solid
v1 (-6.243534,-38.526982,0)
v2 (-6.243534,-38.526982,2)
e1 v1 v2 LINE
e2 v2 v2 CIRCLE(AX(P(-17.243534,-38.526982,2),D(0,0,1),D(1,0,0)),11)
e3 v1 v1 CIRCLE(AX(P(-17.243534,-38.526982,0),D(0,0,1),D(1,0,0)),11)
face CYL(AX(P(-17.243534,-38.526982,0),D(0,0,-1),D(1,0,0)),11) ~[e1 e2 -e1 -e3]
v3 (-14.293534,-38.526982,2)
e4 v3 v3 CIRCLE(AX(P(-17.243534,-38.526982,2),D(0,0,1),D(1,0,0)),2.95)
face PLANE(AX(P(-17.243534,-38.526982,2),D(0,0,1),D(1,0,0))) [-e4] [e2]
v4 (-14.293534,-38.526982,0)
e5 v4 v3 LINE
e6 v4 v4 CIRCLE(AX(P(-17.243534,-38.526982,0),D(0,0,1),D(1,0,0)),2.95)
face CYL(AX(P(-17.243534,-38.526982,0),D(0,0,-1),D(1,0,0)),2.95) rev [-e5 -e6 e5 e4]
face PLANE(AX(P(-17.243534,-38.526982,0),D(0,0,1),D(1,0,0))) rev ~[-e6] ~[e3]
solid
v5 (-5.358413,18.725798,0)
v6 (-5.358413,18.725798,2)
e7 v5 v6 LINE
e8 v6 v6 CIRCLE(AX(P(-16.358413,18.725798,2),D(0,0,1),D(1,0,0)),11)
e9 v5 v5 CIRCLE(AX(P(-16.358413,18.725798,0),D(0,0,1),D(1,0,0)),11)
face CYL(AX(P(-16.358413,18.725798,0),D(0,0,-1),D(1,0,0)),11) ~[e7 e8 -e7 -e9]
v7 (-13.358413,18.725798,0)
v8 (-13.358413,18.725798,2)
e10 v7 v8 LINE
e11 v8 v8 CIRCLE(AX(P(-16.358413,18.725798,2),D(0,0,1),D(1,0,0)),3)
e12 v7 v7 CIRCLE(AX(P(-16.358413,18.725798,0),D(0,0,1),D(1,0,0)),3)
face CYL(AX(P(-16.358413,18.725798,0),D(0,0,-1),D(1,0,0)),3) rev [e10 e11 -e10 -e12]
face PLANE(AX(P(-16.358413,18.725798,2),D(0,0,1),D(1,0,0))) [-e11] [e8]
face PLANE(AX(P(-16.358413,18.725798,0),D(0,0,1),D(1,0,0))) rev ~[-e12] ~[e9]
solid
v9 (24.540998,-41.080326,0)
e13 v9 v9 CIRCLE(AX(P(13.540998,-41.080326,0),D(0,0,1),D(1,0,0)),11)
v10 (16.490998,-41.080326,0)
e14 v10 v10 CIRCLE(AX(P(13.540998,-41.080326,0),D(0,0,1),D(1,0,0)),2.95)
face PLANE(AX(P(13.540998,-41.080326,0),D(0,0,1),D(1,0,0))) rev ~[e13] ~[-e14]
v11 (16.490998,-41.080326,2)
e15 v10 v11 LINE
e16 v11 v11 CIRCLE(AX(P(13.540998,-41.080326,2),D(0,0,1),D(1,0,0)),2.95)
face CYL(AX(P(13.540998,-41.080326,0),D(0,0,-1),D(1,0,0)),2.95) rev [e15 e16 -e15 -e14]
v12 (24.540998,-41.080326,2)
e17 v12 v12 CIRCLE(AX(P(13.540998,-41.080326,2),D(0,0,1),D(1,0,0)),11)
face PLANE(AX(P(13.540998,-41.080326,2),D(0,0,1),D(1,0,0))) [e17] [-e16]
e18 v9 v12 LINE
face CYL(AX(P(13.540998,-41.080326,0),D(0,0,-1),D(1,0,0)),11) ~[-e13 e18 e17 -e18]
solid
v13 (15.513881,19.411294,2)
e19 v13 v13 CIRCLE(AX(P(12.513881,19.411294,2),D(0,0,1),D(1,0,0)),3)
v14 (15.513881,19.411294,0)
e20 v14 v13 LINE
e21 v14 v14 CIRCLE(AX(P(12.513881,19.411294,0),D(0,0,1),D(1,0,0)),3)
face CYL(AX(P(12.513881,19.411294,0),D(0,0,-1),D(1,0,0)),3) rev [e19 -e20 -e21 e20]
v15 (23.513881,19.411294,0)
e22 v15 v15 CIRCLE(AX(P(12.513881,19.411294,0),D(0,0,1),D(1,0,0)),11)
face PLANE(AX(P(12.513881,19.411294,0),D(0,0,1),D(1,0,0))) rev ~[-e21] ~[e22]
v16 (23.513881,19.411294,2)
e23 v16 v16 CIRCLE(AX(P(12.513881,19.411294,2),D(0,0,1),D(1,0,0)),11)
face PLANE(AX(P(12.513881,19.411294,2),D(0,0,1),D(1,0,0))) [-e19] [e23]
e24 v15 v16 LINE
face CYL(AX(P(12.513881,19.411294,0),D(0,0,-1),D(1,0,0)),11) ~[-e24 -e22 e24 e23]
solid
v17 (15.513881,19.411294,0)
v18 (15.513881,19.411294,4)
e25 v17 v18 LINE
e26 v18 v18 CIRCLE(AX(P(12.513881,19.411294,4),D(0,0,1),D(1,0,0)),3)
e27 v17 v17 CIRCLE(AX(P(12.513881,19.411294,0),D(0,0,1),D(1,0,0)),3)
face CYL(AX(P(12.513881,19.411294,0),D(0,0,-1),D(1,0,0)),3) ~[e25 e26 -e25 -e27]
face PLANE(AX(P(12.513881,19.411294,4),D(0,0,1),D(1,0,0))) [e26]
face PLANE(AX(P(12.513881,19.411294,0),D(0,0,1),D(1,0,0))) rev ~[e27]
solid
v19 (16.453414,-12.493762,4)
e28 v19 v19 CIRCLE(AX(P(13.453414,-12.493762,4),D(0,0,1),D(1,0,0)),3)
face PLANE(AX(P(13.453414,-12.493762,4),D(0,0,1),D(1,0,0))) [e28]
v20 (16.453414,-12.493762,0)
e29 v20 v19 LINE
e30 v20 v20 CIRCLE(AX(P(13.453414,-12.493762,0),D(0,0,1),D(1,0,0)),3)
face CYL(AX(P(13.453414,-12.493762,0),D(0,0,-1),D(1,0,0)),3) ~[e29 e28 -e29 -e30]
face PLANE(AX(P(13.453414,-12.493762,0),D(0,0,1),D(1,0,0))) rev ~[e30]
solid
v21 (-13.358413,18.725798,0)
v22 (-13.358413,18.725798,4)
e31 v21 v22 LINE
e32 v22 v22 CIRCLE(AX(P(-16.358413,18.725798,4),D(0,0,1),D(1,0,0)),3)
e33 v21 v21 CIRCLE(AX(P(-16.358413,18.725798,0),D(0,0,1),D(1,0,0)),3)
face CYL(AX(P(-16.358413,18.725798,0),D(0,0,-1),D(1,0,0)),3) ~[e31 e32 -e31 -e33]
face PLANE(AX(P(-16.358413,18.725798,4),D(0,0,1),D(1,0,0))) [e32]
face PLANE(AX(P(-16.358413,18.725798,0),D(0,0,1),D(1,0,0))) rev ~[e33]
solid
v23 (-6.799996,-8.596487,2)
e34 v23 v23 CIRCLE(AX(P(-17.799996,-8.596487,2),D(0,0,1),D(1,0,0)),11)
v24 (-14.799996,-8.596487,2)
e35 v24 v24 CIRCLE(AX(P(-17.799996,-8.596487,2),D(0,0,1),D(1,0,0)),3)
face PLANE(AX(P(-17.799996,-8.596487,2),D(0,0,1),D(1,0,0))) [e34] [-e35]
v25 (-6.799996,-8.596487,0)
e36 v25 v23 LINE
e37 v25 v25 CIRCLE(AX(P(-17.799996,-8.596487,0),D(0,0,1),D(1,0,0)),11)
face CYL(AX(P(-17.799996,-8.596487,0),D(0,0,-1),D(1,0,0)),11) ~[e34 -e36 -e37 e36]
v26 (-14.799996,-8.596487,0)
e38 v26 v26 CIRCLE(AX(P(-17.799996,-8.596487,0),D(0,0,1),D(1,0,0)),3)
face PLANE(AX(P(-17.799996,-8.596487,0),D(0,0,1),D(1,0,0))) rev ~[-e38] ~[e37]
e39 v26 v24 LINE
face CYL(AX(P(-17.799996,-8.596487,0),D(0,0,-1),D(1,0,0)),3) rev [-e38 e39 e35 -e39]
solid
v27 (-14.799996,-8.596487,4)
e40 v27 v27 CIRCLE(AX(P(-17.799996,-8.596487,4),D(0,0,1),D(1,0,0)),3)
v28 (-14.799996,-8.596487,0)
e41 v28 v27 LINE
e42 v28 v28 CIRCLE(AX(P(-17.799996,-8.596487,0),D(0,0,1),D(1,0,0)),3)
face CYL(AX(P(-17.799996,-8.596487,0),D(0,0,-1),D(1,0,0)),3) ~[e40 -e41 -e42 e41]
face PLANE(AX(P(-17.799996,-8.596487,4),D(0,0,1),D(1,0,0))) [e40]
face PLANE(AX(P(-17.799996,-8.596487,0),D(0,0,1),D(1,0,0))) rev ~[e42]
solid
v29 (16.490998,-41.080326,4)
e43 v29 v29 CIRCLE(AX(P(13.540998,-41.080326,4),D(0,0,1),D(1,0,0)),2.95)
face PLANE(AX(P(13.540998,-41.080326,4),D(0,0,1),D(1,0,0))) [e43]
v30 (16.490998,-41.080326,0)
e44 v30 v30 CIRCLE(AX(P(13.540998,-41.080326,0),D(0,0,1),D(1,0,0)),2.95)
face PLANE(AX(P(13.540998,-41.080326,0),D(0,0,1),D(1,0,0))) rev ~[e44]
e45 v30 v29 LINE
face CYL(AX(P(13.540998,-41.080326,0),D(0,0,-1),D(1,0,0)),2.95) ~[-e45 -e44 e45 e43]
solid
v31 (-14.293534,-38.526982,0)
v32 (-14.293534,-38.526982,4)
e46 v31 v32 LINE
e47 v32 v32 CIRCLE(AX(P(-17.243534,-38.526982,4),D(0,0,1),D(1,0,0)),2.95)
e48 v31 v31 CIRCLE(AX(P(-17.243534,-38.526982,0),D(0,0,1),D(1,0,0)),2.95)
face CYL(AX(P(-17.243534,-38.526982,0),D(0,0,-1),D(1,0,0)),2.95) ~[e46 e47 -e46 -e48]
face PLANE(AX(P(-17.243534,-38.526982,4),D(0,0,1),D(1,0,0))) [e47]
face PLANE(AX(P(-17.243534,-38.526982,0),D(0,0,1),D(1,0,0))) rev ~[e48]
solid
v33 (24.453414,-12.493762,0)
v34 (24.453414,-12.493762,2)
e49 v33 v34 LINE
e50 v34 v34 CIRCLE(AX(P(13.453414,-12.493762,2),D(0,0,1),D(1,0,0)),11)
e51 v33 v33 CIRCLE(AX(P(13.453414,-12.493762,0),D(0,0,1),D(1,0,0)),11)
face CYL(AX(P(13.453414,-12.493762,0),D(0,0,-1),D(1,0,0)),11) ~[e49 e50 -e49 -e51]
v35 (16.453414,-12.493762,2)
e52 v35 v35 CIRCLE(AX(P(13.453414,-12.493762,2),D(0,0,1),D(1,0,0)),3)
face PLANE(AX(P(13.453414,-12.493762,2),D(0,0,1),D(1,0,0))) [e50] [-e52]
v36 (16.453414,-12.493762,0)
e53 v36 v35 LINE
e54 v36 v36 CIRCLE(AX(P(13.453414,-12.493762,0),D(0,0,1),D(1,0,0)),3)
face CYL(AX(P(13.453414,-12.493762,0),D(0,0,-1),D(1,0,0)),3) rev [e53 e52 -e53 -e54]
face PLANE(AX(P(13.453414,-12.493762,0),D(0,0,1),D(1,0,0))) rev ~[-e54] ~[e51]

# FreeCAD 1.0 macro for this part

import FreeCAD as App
import Part
import Sketcher
Q = App.Units.Quantity

doc = App.newDocument("Part")
body = doc.addObject("PartDesign::Body", "Body")
body.AllowCompound = True

# Sketch on XY plane
sketch1 = body.newObject("Sketcher::SketchObject", "Sketch")
sketch1.AttachmentSupport = (doc.getObject("XY_Plane"), [""])
sketch1.MapMode = "FlatFace"
sketch1.addGeometry([
    Part.Circle(App.Vector(-16.358413, 18.725798, 0), App.Vector(0, 0, 1), 11),  # 0
    Part.Circle(App.Vector(-16.358413, 18.725798, 0), App.Vector(0, 0, 1), 3),  # 1
    Part.Circle(App.Vector(12.513881, 19.411294, 0), App.Vector(0, 0, 1), 11),  # 2
    Part.Circle(App.Vector(12.513881, 19.411294, 0), App.Vector(0, 0, 1), 3),  # 3
    Part.Circle(App.Vector(-17.799996, -8.596487, 0), App.Vector(0, 0, 1), 11),  # 4
    Part.Circle(App.Vector(-17.799996, -8.596487, 0), App.Vector(0, 0, 1), 3),  # 5
    Part.Circle(App.Vector(13.453414, -12.493762, 0), App.Vector(0, 0, 1), 11),  # 6
    Part.Circle(App.Vector(13.453414, -12.493762, 0), App.Vector(0, 0, 1), 3),  # 7
    Part.Circle(App.Vector(-17.243534, -38.526982, 0), App.Vector(0, 0, 1), 11),  # 8
    Part.Circle(App.Vector(-17.243534, -38.526982, 0), App.Vector(0, 0, 1), 2.95),  # 9
    Part.Circle(App.Vector(13.540998, -41.080326, 0), App.Vector(0, 0, 1), 11),  # 10
    Part.Circle(App.Vector(13.540998, -41.080326, 0), App.Vector(0, 0, 1), 2.95),  # 11
], False)
sketch1.addConstraint([
    Sketcher.Constraint("Coincident", 1, 3, 0, 3),
    Sketcher.Constraint("Coincident", 3, 3, 2, 3),
    Sketcher.Constraint("Coincident", 5, 3, 4, 3),
    Sketcher.Constraint("Coincident", 7, 3, 6, 3),
    Sketcher.Constraint("Coincident", 9, 3, 8, 3),
    Sketcher.Constraint("Coincident", 11, 3, 10, 3),
    Sketcher.Constraint("Equal", 0, 2),
    Sketcher.Constraint("Equal", 1, 3),
    Sketcher.Constraint("Equal", 2, 4),
    Sketcher.Constraint("Equal", 3, 5),
    Sketcher.Constraint("Equal", 4, 6),
    Sketcher.Constraint("Equal", 5, 7),
    Sketcher.Constraint("Equal", 6, 8),
    Sketcher.Constraint("Equal", 8, 10),
    Sketcher.Constraint("Equal", 9, 11),
    Sketcher.Constraint("Diameter", 0, Q("22 mm")),
    Sketcher.Constraint("Diameter", 1, Q("6 mm")),
    Sketcher.Constraint("Diameter", 9, Q("5.9 mm")),
    Sketcher.Constraint("DistanceY", -1, 1, 0, 3, Q("18.725798 mm")),
    Sketcher.Constraint("DistanceX", -1, 1, 2, 3, Q("12.513881 mm")),
    Sketcher.Constraint("DistanceY", 8, 3, -1, 1, Q("38.526982 mm")),
    Sketcher.Constraint("DistanceY", 4, 3, 2, 3, Q("28.007781 mm")),
    Sketcher.Constraint("DistanceX", 4, 3, 6, 3, Q("31.25341 mm")),
    Sketcher.Constraint("DistanceY", 6, 3, 0, 3, Q("31.21956 mm")),
    Sketcher.Constraint("DistanceX", 4, 3, 8, 3, Q("0.556462 mm")),
    Sketcher.Constraint("DistanceX", 8, 3, 0, 3, Q("0.885121 mm")),
    Sketcher.Constraint("DistanceX", 8, 3, 10, 3, Q("30.784532 mm")),
    Sketcher.Constraint("DistanceY", 10, 3, 4, 3, Q("32.483839 mm")),
    Sketcher.Constraint("DistanceX", 0, 3, -1, 1, Q("16.358413 mm")),
    Sketcher.Constraint("DistanceY", -1, 1, 2, 3, Q("19.411294 mm")),
])
pad1 = body.newObject("PartDesign::Pad", "Pad")
pad1.Profile = sketch1
pad1.Length = 2
body2 = doc.addObject("PartDesign::Body", "Body001")
body2.AllowCompound = True

# Sketch on XY plane
sketch2 = body2.newObject("Sketcher::SketchObject", "Sketch001")
sketch2.AttachmentSupport = (doc.getObject("XY_Plane001"), [""])
sketch2.MapMode = "FlatFace"
sketch2.addGeometry([
    Part.Circle(App.Vector(-16.358413, 18.725798, 0), App.Vector(0, 0, 1), 3),  # 0
    Part.Circle(App.Vector(12.513881, 19.411294, 0), App.Vector(0, 0, 1), 3),  # 1
    Part.Circle(App.Vector(-17.799996, -8.596487, 0), App.Vector(0, 0, 1), 3),  # 2
    Part.Circle(App.Vector(13.453414, -12.493762, 0), App.Vector(0, 0, 1), 3),  # 3
    Part.Circle(App.Vector(-17.243534, -38.526982, 0), App.Vector(0, 0, 1), 2.95),  # 4
    Part.Circle(App.Vector(13.540998, -41.080326, 0), App.Vector(0, 0, 1), 2.95),  # 5
], False)
sketch2.addConstraint([
    Sketcher.Constraint("Equal", 0, 1),
    Sketcher.Constraint("Equal", 1, 2),
    Sketcher.Constraint("Equal", 2, 3),
    Sketcher.Constraint("Equal", 4, 5),
    Sketcher.Constraint("Diameter", 0, Q("6 mm")),
    Sketcher.Constraint("Diameter", 4, Q("5.9 mm")),
    Sketcher.Constraint("DistanceY", -1, 1, 0, 3, Q("18.725798 mm")),
    Sketcher.Constraint("DistanceX", -1, 1, 1, 3, Q("12.513881 mm")),
    Sketcher.Constraint("DistanceY", 4, 3, -1, 1, Q("38.526982 mm")),
    Sketcher.Constraint("DistanceY", 2, 3, 1, 3, Q("28.007781 mm")),
    Sketcher.Constraint("DistanceX", 2, 3, 3, 3, Q("31.25341 mm")),
    Sketcher.Constraint("DistanceY", 3, 3, 0, 3, Q("31.21956 mm")),
    Sketcher.Constraint("DistanceX", 2, 3, 4, 3, Q("0.556462 mm")),
    Sketcher.Constraint("DistanceX", 4, 3, 0, 3, Q("0.885121 mm")),
    Sketcher.Constraint("DistanceX", 4, 3, 5, 3, Q("30.784532 mm")),
    Sketcher.Constraint("DistanceY", 5, 3, 2, 3, Q("32.483839 mm")),
    Sketcher.Constraint("DistanceX", 0, 3, -1, 1, Q("16.358413 mm")),
    Sketcher.Constraint("DistanceY", -1, 1, 1, 3, Q("19.411294 mm")),
])
pad2 = body2.newObject("PartDesign::Pad", "Pad001")
pad2.Profile = sketch2
pad2.Length = 4

doc.recompute()
